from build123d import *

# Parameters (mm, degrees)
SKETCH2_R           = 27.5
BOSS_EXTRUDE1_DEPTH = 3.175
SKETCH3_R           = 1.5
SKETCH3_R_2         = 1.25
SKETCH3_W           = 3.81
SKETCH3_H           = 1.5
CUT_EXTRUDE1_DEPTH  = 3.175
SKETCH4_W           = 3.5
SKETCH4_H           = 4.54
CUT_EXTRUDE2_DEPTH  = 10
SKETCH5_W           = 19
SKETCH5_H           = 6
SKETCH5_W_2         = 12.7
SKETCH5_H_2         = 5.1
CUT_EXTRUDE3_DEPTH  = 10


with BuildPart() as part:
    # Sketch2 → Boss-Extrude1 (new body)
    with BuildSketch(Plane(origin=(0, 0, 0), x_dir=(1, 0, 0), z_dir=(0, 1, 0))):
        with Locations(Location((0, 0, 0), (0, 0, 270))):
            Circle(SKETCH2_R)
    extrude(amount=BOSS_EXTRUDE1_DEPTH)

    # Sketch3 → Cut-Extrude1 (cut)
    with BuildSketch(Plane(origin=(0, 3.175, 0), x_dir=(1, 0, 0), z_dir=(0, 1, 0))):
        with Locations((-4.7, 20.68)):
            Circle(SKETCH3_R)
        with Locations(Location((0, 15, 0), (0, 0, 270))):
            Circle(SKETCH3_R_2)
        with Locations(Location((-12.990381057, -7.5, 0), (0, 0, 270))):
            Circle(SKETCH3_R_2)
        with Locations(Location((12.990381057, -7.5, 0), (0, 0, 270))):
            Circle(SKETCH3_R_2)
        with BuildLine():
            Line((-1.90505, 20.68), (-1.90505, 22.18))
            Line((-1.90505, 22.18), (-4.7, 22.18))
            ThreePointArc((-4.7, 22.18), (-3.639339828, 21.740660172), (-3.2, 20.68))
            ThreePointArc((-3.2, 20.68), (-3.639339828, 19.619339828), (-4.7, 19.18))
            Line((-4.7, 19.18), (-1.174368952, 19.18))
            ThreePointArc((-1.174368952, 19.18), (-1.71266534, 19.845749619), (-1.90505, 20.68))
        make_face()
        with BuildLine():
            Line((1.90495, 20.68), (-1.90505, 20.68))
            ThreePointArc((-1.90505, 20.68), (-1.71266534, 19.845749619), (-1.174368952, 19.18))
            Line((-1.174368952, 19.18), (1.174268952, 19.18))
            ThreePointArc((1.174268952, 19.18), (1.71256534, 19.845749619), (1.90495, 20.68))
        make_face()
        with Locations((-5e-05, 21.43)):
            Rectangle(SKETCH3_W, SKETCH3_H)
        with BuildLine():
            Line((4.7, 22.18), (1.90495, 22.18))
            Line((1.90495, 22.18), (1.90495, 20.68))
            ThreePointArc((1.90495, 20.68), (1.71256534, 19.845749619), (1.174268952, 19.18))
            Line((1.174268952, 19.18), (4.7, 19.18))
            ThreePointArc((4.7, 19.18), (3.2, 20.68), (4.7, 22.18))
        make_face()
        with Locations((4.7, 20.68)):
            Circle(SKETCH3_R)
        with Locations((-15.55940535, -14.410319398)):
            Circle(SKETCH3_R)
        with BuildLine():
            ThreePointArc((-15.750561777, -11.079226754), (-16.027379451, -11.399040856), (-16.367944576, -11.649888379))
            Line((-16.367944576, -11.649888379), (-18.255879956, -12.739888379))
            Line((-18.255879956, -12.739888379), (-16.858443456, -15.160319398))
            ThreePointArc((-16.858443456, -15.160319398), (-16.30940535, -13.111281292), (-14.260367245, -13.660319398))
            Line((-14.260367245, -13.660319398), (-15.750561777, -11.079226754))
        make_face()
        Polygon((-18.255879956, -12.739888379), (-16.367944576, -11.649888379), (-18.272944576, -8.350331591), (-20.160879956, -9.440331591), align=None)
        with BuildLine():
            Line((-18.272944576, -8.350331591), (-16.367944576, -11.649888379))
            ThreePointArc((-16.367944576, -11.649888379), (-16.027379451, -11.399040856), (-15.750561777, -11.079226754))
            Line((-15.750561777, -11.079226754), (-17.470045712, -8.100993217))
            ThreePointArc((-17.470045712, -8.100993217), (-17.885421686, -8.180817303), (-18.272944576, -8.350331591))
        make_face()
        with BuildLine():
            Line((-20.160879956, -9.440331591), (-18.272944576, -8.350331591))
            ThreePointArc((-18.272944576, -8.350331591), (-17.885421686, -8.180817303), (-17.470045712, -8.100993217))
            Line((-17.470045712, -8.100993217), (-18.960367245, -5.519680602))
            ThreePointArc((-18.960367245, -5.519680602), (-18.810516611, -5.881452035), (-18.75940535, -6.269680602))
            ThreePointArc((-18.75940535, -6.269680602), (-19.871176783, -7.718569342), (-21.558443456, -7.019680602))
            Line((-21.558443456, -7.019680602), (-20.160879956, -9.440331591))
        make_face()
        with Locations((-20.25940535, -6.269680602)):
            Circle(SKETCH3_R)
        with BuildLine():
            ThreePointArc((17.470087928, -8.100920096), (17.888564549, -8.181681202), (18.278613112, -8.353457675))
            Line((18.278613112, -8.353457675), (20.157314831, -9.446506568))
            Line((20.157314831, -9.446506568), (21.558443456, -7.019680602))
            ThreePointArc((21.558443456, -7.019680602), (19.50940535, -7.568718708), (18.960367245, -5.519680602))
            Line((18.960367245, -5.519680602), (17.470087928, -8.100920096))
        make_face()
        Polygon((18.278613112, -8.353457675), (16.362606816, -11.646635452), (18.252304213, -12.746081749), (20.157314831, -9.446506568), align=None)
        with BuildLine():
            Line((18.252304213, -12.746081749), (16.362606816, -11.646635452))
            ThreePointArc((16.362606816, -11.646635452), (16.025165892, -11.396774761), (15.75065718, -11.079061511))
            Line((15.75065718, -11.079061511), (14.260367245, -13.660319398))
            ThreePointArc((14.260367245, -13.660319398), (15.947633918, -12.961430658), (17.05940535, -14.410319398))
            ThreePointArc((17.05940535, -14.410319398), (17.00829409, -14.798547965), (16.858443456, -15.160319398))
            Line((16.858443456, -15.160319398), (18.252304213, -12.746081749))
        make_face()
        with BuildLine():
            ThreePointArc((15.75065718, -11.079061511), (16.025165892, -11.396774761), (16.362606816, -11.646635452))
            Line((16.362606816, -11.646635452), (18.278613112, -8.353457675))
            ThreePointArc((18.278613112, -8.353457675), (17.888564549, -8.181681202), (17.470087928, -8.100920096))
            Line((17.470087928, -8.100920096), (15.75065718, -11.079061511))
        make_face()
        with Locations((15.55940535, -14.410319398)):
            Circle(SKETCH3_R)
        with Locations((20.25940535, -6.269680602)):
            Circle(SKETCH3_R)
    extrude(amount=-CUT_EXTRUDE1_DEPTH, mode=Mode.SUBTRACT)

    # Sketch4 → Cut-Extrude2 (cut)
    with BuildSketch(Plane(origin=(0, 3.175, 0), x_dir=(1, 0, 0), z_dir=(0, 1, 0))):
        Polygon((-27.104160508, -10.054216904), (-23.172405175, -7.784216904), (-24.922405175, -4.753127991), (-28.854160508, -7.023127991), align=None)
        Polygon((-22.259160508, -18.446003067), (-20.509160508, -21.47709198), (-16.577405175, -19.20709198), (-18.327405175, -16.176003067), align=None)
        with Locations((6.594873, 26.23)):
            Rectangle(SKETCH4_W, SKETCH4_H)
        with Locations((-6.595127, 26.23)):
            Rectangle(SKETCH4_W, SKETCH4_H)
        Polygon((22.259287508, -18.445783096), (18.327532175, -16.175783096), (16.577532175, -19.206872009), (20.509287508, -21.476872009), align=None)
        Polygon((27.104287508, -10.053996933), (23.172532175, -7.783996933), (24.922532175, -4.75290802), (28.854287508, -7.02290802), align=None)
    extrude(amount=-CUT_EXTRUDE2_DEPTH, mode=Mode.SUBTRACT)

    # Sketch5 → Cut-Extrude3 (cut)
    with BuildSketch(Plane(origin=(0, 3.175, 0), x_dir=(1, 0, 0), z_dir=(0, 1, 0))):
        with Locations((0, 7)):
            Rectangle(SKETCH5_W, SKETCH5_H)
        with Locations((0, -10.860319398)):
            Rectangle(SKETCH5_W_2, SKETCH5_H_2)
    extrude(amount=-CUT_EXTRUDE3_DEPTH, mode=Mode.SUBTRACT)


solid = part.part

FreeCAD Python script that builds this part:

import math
import FreeCAD as App
import Part
import Sketcher

V = App.Vector
Q = App.Units.Quantity


def add_polygon(sketch, points):
    """Adds a closed chain of lines whose ends are joined by coincident constraints."""
    first, n = sketch.GeometryCount, len(points)
    for a, b in zip(points, points[1:] + points[:1]):
        sketch.addGeometry(Part.LineSegment(App.Vector(*a, 0), App.Vector(*b, 0)), False)
    for i in range(n):
        sketch.addConstraint(Sketcher.Constraint("Coincident", first + i, 2, first + (i + 1) % n, 1))

doc = App.newDocument("Part")
body = doc.addObject("PartDesign::Body", "Body")

# Sketch on XZ plane
sketch1 = body.newObject("Sketcher::SketchObject", "Sketch")
sketch1.AttachmentSupport = (doc.getObject("XZ_Plane"), [""])
sketch1.MapMode = "FlatFace"
sketch1.addGeometry(Part.Circle(V(0, 0, 0), V(0, 0, 1), 28), False)
sketch1.addConstraint([
    Sketcher.Constraint("Coincident", 0, 3, -1, 1),
    Sketcher.Constraint("Diameter", 0, 55.0),
])
pad1 = body.newObject("PartDesign::Pad", "Pad")
pad1.Profile = sketch1
pad1.Length = 3.175
pad1.Reversed = True

# Sketch on XZ plane
sketch2 = body.newObject("Sketcher::SketchObject", "Sketch001")
sketch2.AttachmentSupport = (doc.getObject("XZ_Plane"), [""])
sketch2.MapMode = "FlatFace"
sketch2.AttachmentOffset = App.Placement(V(0, 0, -3.175), App.Rotation())
sketch2.addGeometry([
    Part.ArcOfCircle(Part.Circle(V(-4.7, -20.7, 0), V(0, 0, 1), 1.5), math.radians(90), math.radians(270)),  # 0
    Part.LineSegment(V(-4.7, -19.2, 0), V(4.7, -19.2, 0)),  # 1
    Part.ArcOfCircle(Part.Circle(V(4.7, -20.7, 0), V(0, 0, 1), 1.5), math.radians(-90), math.radians(90)),  # 2
    Part.LineSegment(V(4.7, -22.2, 0), V(-4.7, -22.2, 0)),  # 3
    Part.Circle(V(0, -15, 0), V(0, 0, 1), 1.2),  # 4
    Part.Circle(V(-13, 7.5, 0), V(0, 0, 1), 1.2),  # 5
    Part.Circle(V(13, 7.5, 0), V(0, 0, 1), 1.2),  # 6
    Part.LineSegment(V(-14.3, 13.7, 0), V(-15.8, 11.1, 0)),  # 7
    Part.LineSegment(V(-15.8, 11.1, 0), V(-17.5, 8.1, 0)),  # 8
    Part.LineSegment(V(-17.5, 8.1, 0), V(-19, 5.5, 0)),  # 9
    Part.ArcOfCircle(Part.Circle(V(-20.3, 6.3, 0), V(0, 0, 1), 1.5), math.radians(150), math.radians(330)),  # 10
    Part.LineSegment(V(-21.6, 7, 0), V(-20.2, 9.4, 0)),  # 11
    Part.LineSegment(V(-20.2, 9.4, 0), V(-18.3, 12.7, 0)),  # 12
    Part.LineSegment(V(-18.3, 12.7, 0), V(-16.9, 15.2, 0)),  # 13
    Part.ArcOfCircle(Part.Circle(V(-15.6, 14.4, 0), V(0, 0, 1), 1.5), math.radians(-30), math.radians(150)),  # 14
    Part.LineSegment(V(15.8, 11.1, 0), V(14.3, 13.7, 0)),  # 15
    Part.ArcOfCircle(Part.Circle(V(15.6, 14.4, 0), V(0, 0, 1), 1.5), math.radians(30), math.radians(210)),  # 16
    Part.LineSegment(V(16.9, 15.2, 0), V(18.3, 12.7, 0)),  # 17
    Part.LineSegment(V(18.3, 12.7, 0), V(20.2, 9.4, 0)),  # 18
    Part.LineSegment(V(20.2, 9.4, 0), V(21.6, 7, 0)),  # 19
    Part.ArcOfCircle(Part.Circle(V(20.3, 6.3, 0), V(0, 0, 1), 1.5), math.radians(-150), math.radians(30)),  # 20
    Part.LineSegment(V(19, 5.5, 0), V(17.5, 8.1, 0)),  # 21
    Part.LineSegment(V(17.5, 8.1, 0), V(15.8, 11.1, 0)),  # 22
], False)
sketch2.addConstraint([
    Sketcher.Constraint("Tangent", 0, 1, 1, 1),
    Sketcher.Constraint("Tangent", 1, 2, 2, 2),
    Sketcher.Constraint("Tangent", 2, 1, 3, 1),
    Sketcher.Constraint("Tangent", 3, 2, 0, 2),
    Sketcher.Constraint("Coincident", 7, 2, 8, 1),
    Sketcher.Constraint("Coincident", 8, 2, 9, 1),
    Sketcher.Constraint("Tangent", 9, 2, 10, 2),
    Sketcher.Constraint("Tangent", 10, 1, 11, 1),
    Sketcher.Constraint("Coincident", 11, 2, 12, 1),
    Sketcher.Constraint("Coincident", 12, 2, 13, 1),
    Sketcher.Constraint("Tangent", 13, 2, 14, 2),
    Sketcher.Constraint("Tangent", 14, 1, 7, 1),
    Sketcher.Constraint("Tangent", 15, 2, 16, 2),
    Sketcher.Constraint("Tangent", 16, 1, 17, 1),
    Sketcher.Constraint("Coincident", 17, 2, 18, 1),
    Sketcher.Constraint("Coincident", 18, 2, 19, 1),
    Sketcher.Constraint("Tangent", 19, 2, 20, 2),
    Sketcher.Constraint("Tangent", 20, 1, 21, 1),
    Sketcher.Constraint("Coincident", 21, 2, 22, 1),
    Sketcher.Constraint("Coincident", 22, 2, 15, 1),
    Sketcher.Constraint("Horizontal", 1),
    Sketcher.Constraint("Horizontal", 3),
    Sketcher.Constraint("Equal", 4, 5),
    Sketcher.Constraint("Equal", 5, 6),
    Sketcher.Constraint("Equal", 2, 10),
    Sketcher.Constraint("Equal", 10, 14),
    Sketcher.Constraint("Equal", 14, 16),
    Sketcher.Constraint("Equal", 16, 20),
    Sketcher.Constraint("Symmetric", 5, 3, 6, 3, -2),
    Sketcher.Constraint("Symmetric", 14, 3, 16, 3, -2),
    Sketcher.Constraint("Symmetric", 10, 3, 20, 3, -2),
    Sketcher.Constraint("PointOnObject", 4, 3, -2),
    Sketcher.Constraint("Parallel", 7, 8),
    Sketcher.Constraint("Parallel", 8, 9),
    Sketcher.Constraint("Parallel", 9, 11),
    Sketcher.Constraint("Parallel", 11, 12),
    Sketcher.Constraint("Parallel", 15, 17),
    Sketcher.Constraint("Parallel", 17, 18),
    Sketcher.Constraint("Parallel", 18, 19),
    Sketcher.Constraint("Parallel", 19, 21),
    Sketcher.Constraint("Diameter", 4, 2.5),
    Sketcher.Constraint("Radius", 0, 1.5),
    Sketcher.Constraint("Angle", 7, Q("-120 deg")),
    Sketcher.Constraint("DistanceX", 1, 1, 1, 2, 9.4),
    Sketcher.Constraint("DistanceY", 4, 3, -1, 1, 15.0),
    Sketcher.Constraint("DistanceX", 0, 3, -1, 1, 4.7),
    Sketcher.Constraint("DistanceY", -1, 1, 5, 3, 7.5),
    Sketcher.Constraint("DistanceX", 10, 3, 14, 3, 4.7),
    Sketcher.Constraint("Distance", 12, 3.81),
    Sketcher.Constraint("DistanceY", 0, 3, -1, 1, 20.68),
    Sketcher.Constraint("DistanceX", 16, 3, 17, 2, 2.692899),
    Sketcher.Constraint("Distance", 7, 2.980389),
    Sketcher.Constraint("Distance", 15, 2.98058),
    Sketcher.Constraint("Distance", 18, 3.810021),
    Sketcher.Constraint("Distance", 21, 2.980559),
    Sketcher.Constraint("DistanceX", 5, 3, -1, 1, 12.990381),
    Sketcher.Constraint("DistanceY", -1, 1, 10, 3, 6.269681),
    Sketcher.Constraint("DistanceX", 7, 2, -1, 1, 15.750562),
    Sketcher.Constraint("DistanceX", 11, 2, -1, 1, 20.16088),
    Sketcher.Constraint("DistanceX", 10, 3, 8, 2, 2.78936),
])
pocket1 = body.newObject("PartDesign::Pocket", "Pocket")
pocket1.Profile = sketch2
pocket1.Length = 3.175
pocket1.Reversed = True

# Sketch on XZ plane
sketch3 = body.newObject("Sketcher::SketchObject", "Sketch002")
sketch3.AttachmentSupport = (doc.getObject("XZ_Plane"), [""])
sketch3.MapMode = "FlatFace"
sketch3.AttachmentOffset = App.Placement(V(0, 0, -3.175), App.Rotation())
add_polygon(sketch3, [(-27.1, 10.1), (-23.2, 7.8), (-24.9, 4.8), (-28.9, 7)])  # lines 0-3
add_polygon(sketch3, [(-22.3, 18.4), (-20.5, 21.5), (-16.6, 19.2), (-18.3, 16.2)])  # lines 4-7
add_polygon(sketch3, [(4.8, -28.5), (4.8, -24), (8.3, -24), (8.3, -28.5)])  # lines 8-11
add_polygon(sketch3, [(-8.3, -28.5), (-8.3, -24), (-4.8, -24), (-4.8, -28.5)])  # lines 12-15
add_polygon(sketch3, [(22.3, 18.4), (18.3, 16.2), (16.6, 19.2), (20.5, 21.5)])  # lines 16-19
add_polygon(sketch3, [(23.2, 7.8), (27.1, 10.1), (28.9, 7), (24.9, 4.8)])  # lines 20-23
sketch3.addConstraint([
    Sketcher.Constraint("Vertical", 8),
    Sketcher.Constraint("Horizontal", 9),
    Sketcher.Constraint("Vertical", 10),
    Sketcher.Constraint("Horizontal", 11),
    Sketcher.Constraint("Vertical", 12),
    Sketcher.Constraint("Horizontal", 13),
    Sketcher.Constraint("Vertical", 14),
    Sketcher.Constraint("Horizontal", 15),
    Sketcher.Constraint("Perpendicular", 0, 1),
    Sketcher.Constraint("Perpendicular", 1, 2),
    Sketcher.Constraint("Perpendicular", 2, 3),
    Sketcher.Constraint("Parallel", 3, 4),
    Sketcher.Constraint("Perpendicular", 4, 5),
    Sketcher.Constraint("Perpendicular", 5, 6),
    Sketcher.Constraint("Perpendicular", 6, 7),
    Sketcher.Constraint("Perpendicular", 16, 17),
    Sketcher.Constraint("Perpendicular", 17, 18),
    Sketcher.Constraint("Perpendicular", 18, 19),
    Sketcher.Constraint("Perpendicular", 19, 20),
    Sketcher.Constraint("Perpendicular", 20, 21),
    Sketcher.Constraint("Perpendicular", 21, 22),
    Sketcher.Constraint("Perpendicular", 22, 23),
    Sketcher.Constraint("Horizontal", 9, 2, 12, 2),
    Sketcher.Constraint("Horizontal", 11, 2, 14, 2),
    Sketcher.Constraint("Equal", 11, 13),
    Sketcher.Constraint("Equal", 3, 4),
    Sketcher.Constraint("Equal", 2, 5),
    Sketcher.Constraint("Equal", 7, 16),
    Sketcher.Constraint("Equal", 6, 17),
    Sketcher.Constraint("Equal", 18, 20),
    Sketcher.Constraint("Equal", 19, 21),
    Sketcher.Constraint("Angle", 0, Q("-30 deg")),
    Sketcher.Constraint("Angle", 16, Q("-150 deg")),
    Sketcher.Constraint("DistanceX", 9, 1, 9, 2, 3.5),
    Sketcher.Constraint("Distance", 1, 3.5),
    Sketcher.Constraint("DistanceY", 8, 1, 8, 2, 4.54),
    Sketcher.Constraint("DistanceY", 10, 2, -1, 1, 28.5),
    Sketcher.Constraint("Distance", 0, 4.54),
    Sketcher.Constraint("DistanceX", 12, 2, 8, 2, 13.19),
    Sketcher.Constraint("DistanceX", 3, 2, 4, 2, 6.595),
    Sketcher.Constraint("DistanceX", 19, 2, 20, 2, 4.845),
    Sketcher.Constraint("DistanceX", 2, 2, -1, 1, 28.854161),
    Sketcher.Constraint("DistanceY", -1, 1, 4, 2, 21.477092),
    Sketcher.Constraint("DistanceY", -1, 1, 21, 2, 7.022908),
    Sketcher.Constraint("DistanceX", 1, 2, 8, 2, 29.767278),
    Sketcher.Constraint("DistanceY", 16, 2, 5, 2, 3.031309),
    Sketcher.Constraint("DistanceX", 9, 2, 16, 2, 9.982659),
    Sketcher.Constraint("DistanceY", -1, 1, 0, 2, 7.784217),
])
pocket2 = body.newObject("PartDesign::Pocket", "Pocket001")
pocket2.Profile = sketch3
pocket2.Length = 10
pocket2.Reversed = True

# Sketch on XZ plane
sketch4 = body.newObject("Sketcher::SketchObject", "Sketch003")
sketch4.AttachmentSupport = (doc.getObject("XZ_Plane"), [""])
sketch4.MapMode = "FlatFace"
sketch4.AttachmentOffset = App.Placement(V(0, 0, -3.175), App.Rotation())
add_polygon(sketch4, [(-10, -10), (-10, -4), (10, -4), (10, -10)])  # lines 0-3
add_polygon(sketch4, [(-6, 8), (-6, 13), (6, 13), (6, 8)])  # lines 4-7
sketch4.addConstraint([
    Sketcher.Constraint("Vertical", 0),
    Sketcher.Constraint("Horizontal", 1),
    Sketcher.Constraint("Vertical", 2),
    Sketcher.Constraint("Horizontal", 3),
    Sketcher.Constraint("Vertical", 4),
    Sketcher.Constraint("Horizontal", 5),
    Sketcher.Constraint("Vertical", 6),
    Sketcher.Constraint("Horizontal", 7),
    Sketcher.Constraint("DistanceX", 1, 1, 1, 2, 19.0),
    Sketcher.Constraint("DistanceY", 0, 1, 0, 2, 6.0),
    Sketcher.Constraint("DistanceX", 5, 1, 5, 2, 12.7),
    Sketcher.Constraint("DistanceY", 4, 1, 4, 2, 5.1),
    Sketcher.Constraint("DistanceY", 0, 2, -1, 1, 4.0),
    Sketcher.Constraint("DistanceX", 0, 2, -1, 1, 9.5),
    Sketcher.Constraint("DistanceX", 4, 2, -1, 1, 6.35),
    Sketcher.Constraint("DistanceY", -1, 1, 4, 2, 13.410319),
])
pocket3 = body.newObject("PartDesign::Pocket", "Pocket002")
pocket3.Profile = sketch4
pocket3.Length = 10
pocket3.Reversed = True

doc.recompute()
